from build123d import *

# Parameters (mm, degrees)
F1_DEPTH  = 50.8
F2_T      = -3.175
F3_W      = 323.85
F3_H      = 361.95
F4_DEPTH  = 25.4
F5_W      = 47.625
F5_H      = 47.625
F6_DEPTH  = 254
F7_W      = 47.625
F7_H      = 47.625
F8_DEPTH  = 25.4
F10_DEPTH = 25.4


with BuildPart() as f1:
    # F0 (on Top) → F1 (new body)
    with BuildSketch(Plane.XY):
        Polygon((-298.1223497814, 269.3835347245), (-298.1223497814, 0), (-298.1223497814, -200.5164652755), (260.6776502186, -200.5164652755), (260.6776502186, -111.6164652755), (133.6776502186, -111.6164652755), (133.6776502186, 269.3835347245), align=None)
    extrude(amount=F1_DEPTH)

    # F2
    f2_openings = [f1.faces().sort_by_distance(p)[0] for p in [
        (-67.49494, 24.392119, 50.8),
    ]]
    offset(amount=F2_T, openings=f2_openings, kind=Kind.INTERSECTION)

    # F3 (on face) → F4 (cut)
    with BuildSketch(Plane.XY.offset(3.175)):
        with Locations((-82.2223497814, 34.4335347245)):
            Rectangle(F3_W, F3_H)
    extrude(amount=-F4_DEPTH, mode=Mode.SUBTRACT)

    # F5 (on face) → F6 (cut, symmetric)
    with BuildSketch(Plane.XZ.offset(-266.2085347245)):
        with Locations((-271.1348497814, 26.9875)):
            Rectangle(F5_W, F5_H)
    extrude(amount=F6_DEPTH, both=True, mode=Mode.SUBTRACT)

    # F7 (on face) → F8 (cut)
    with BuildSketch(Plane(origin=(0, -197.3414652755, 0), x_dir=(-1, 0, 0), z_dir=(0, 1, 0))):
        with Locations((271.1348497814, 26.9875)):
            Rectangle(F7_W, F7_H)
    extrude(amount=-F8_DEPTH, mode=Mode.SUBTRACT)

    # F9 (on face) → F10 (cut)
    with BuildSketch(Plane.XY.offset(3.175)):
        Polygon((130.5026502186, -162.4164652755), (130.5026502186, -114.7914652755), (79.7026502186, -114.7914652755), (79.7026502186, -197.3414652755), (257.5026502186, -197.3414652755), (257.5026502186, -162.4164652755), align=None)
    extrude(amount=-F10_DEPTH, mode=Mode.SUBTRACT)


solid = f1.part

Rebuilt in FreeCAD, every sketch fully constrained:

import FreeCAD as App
import Part
import Sketcher
Q = App.Units.Quantity


def faces_at(feature, points):
    """Names of the faces that lie closest to the given points."""
    faces = feature.Shape.Faces
    near = lambda p: min(range(len(faces)), key=lambda i: faces[i].distToShape(Part.Vertex(*p))[0])
    return sorted({f"Face{near(p) + 1}" for p in points})


def add_polygon(sketch, points):
    """Adds a closed chain of lines whose ends are joined by coincident constraints."""
    first, n = sketch.GeometryCount, len(points)
    for a, b in zip(points, points[1:] + points[:1]):
        sketch.addGeometry(Part.LineSegment(App.Vector(*a, 0), App.Vector(*b, 0)), False)
    for i in range(n):
        sketch.addConstraint(Sketcher.Constraint("Coincident", first + i, 2, first + (i + 1) % n, 1))

doc = App.newDocument("Part")
body = doc.addObject("PartDesign::Body", "Body")

# Sketch on XY plane
sketch1 = doc.addObject("Sketcher::SketchObject", "Sketch")
body.addObject(sketch1)
sketch1.AttachmentSupport = (doc.XY_Plane, [""])
sketch1.MapMode = "FlatFace"
add_polygon(sketch1, [(-298.12235, 269.383535), (-298.12235, -200.516465), (260.67765, -200.516465), (260.67765, -111.616465), (133.67765, -111.616465), (133.67765, 269.383535)])  # lines 0-5
sketch1.addConstraint([
    Sketcher.Constraint("Vertical", 0),
    Sketcher.Constraint("Horizontal", 1),
    Sketcher.Constraint("Vertical", 2),
    Sketcher.Constraint("Horizontal", 3),
    Sketcher.Constraint("Vertical", 4),
    Sketcher.Constraint("Horizontal", 5),
    Sketcher.Constraint("DistanceX", 1, 1, 1, 2, Q("22 in")),
    Sketcher.Constraint("DistanceX", 3, 2, 3, 1, Q("5 in")),
    Sketcher.Constraint("DistanceY", 4, 1, 4, 2, Q("15 in")),
    Sketcher.Constraint("DistanceY", 0, 2, 0, 1, Q("18.5 in")),
    Sketcher.Constraint("DistanceX", 0, 2, -1, 1, 298.12235),
    Sketcher.Constraint("DistanceY", 0, 2, -1, 1, 200.516465),
])
pad1 = doc.addObject("PartDesign::Pad", "Pad")
body.addObject(pad1)
pad1.Profile = sketch1
pad1.Length = Q("2 in")
doc.recompute()

thickness = doc.addObject("PartDesign::Thickness", "Thickness")
body.addObject(thickness)
thickness.Base = (pad1, faces_at(pad1, [(-18.722, 34.434, 50.8)]))
thickness.Value = Q("0.125 in")
thickness.Reversed = True
thickness.Join = "Intersection"

# Sketch on XY plane
sketch2 = doc.addObject("Sketcher::SketchObject", "Sketch001")
body.addObject(sketch2)
sketch2.AttachmentSupport = (doc.XY_Plane, [""])
sketch2.MapMode = "FlatFace"
sketch2.AttachmentOffset = App.Placement(App.Vector(0, 0, 0.125 * 25.4), App.Rotation())
add_polygon(sketch2, [(-244.14735, 215.408535), (-244.14735, -146.541465), (79.70265, -146.541465), (79.70265, 215.408535)])  # lines 0-3
sketch2.addConstraint([
    Sketcher.Constraint("Vertical", 0),
    Sketcher.Constraint("Horizontal", 1),
    Sketcher.Constraint("Vertical", 2),
    Sketcher.Constraint("Horizontal", 3),
    Sketcher.Constraint("DistanceX", 1, 1, 1, 2, Q("12.75 in")),
    Sketcher.Constraint("DistanceY", 0, 2, 0, 1, Q("14.25 in")),
    Sketcher.Constraint("DistanceX", 0, 2, -1, 1, 244.14735),
    Sketcher.Constraint("DistanceY", 0, 2, -1, 1, 146.541465),
])
pocket1 = doc.addObject("PartDesign::Pocket", "Pocket")
body.addObject(pocket1)
pocket1.Profile = sketch2
pocket1.Length = Q("1 in")

# Sketch on XZ plane
sketch3 = doc.addObject("Sketcher::SketchObject", "Sketch002")
body.addObject(sketch3)
sketch3.AttachmentSupport = (doc.XZ_Plane, [""])
sketch3.MapMode = "FlatFace"
sketch3.AttachmentOffset = App.Placement(App.Vector(0, 0, -266.208535), App.Rotation())
add_polygon(sketch3, [(-294.94735, 50.8), (-294.94735, 3.175), (-247.32235, 3.175), (-247.32235, 50.8)])  # lines 0-3
sketch3.addConstraint([
    Sketcher.Constraint("Vertical", 0),
    Sketcher.Constraint("Horizontal", 1),
    Sketcher.Constraint("Vertical", 2),
    Sketcher.Constraint("Horizontal", 3),
    Sketcher.Constraint("Equal", 3, 0),
    Sketcher.Constraint("DistanceY", -1, 1, 2, 2, Q("2 in")),
    Sketcher.Constraint("DistanceX", 1, 1, 1, 2, Q("1.875 in")),
    Sketcher.Constraint("DistanceX", 0, 2, -1, 1, 294.94735),
])
pocket2 = doc.addObject("PartDesign::Pocket", "Pocket001")
body.addObject(pocket2)
pocket2.Profile = sketch3
pocket2.Length = Q("20 in")
pocket2.Midplane = True

# Sketch on XZ plane
sketch4 = doc.addObject("Sketcher::SketchObject", "Sketch003")
body.addObject(sketch4)
sketch4.AttachmentSupport = (doc.XZ_Plane, [""])
sketch4.MapMode = "FlatFace"
sketch4.AttachmentOffset = App.Placement(App.Vector(0, 0, 197.341465), App.Rotation())
add_polygon(sketch4, [(-247.32235, 50.8), (-247.32235, 3.175), (-294.94735, 3.175), (-294.94735, 50.8)])  # lines 0-3
sketch4.addConstraint([
    Sketcher.Constraint("Vertical", 0),
    Sketcher.Constraint("Horizontal", 1),
    Sketcher.Constraint("Vertical", 2),
    Sketcher.Constraint("Horizontal", 3),
    Sketcher.Constraint("Equal", 3, 0),
    Sketcher.Constraint("DistanceY", -1, 1, 2, 2, Q("2 in")),
    Sketcher.Constraint("DistanceX", 1, 2, 1, 1, Q("1.875 in")),
    Sketcher.Constraint("DistanceX", 0, 2, -1, 1, 247.32235),
])
pocket3 = doc.addObject("PartDesign::Pocket", "Pocket002")
body.addObject(pocket3)
pocket3.Profile = sketch4
pocket3.Length = Q("1 in")
pocket3.Reversed = True

# Sketch on XY plane
sketch5 = doc.addObject("Sketcher::SketchObject", "Sketch004")
body.addObject(sketch5)
sketch5.AttachmentSupport = (doc.XY_Plane, [""])
sketch5.MapMode = "FlatFace"
sketch5.AttachmentOffset = App.Placement(App.Vector(0, 0, 0.125 * 25.4), App.Rotation())
add_polygon(sketch5, [(130.50265, -162.416465), (130.50265, -114.791465), (79.70265, -114.791465), (79.70265, -197.341465), (257.50265, -197.341465), (257.50265, -162.416465)])  # lines 0-5
sketch5.addConstraint([
    Sketcher.Constraint("Vertical", 0),
    Sketcher.Constraint("Horizontal", 1),
    Sketcher.Constraint("Vertical", 2),
    Sketcher.Constraint("Horizontal", 3),
    Sketcher.Constraint("Vertical", 4),
    Sketcher.Constraint("Horizontal", 5),
    Sketcher.Constraint("DistanceX", 1, 2, 1, 1, Q("2 in")),
    Sketcher.Constraint("DistanceX", 3, 1, 3, 2, Q("7 in")),
    Sketcher.Constraint("DistanceY", 2, 2, 2, 1, Q("3.25 in")),
    Sketcher.Constraint("DistanceY", 0, 1, 0, 2, Q("1.875 in")),
    Sketcher.Constraint("DistanceX", -1, 1, 0, 2, 130.50265),
    Sketcher.Constraint("DistanceY", 0, 2, -1, 1, 114.791465),
])
pocket4 = doc.addObject("PartDesign::Pocket", "Pocket003")
body.addObject(pocket4)
pocket4.Profile = sketch5
pocket4.Length = Q("1 in")

doc.recompute()
